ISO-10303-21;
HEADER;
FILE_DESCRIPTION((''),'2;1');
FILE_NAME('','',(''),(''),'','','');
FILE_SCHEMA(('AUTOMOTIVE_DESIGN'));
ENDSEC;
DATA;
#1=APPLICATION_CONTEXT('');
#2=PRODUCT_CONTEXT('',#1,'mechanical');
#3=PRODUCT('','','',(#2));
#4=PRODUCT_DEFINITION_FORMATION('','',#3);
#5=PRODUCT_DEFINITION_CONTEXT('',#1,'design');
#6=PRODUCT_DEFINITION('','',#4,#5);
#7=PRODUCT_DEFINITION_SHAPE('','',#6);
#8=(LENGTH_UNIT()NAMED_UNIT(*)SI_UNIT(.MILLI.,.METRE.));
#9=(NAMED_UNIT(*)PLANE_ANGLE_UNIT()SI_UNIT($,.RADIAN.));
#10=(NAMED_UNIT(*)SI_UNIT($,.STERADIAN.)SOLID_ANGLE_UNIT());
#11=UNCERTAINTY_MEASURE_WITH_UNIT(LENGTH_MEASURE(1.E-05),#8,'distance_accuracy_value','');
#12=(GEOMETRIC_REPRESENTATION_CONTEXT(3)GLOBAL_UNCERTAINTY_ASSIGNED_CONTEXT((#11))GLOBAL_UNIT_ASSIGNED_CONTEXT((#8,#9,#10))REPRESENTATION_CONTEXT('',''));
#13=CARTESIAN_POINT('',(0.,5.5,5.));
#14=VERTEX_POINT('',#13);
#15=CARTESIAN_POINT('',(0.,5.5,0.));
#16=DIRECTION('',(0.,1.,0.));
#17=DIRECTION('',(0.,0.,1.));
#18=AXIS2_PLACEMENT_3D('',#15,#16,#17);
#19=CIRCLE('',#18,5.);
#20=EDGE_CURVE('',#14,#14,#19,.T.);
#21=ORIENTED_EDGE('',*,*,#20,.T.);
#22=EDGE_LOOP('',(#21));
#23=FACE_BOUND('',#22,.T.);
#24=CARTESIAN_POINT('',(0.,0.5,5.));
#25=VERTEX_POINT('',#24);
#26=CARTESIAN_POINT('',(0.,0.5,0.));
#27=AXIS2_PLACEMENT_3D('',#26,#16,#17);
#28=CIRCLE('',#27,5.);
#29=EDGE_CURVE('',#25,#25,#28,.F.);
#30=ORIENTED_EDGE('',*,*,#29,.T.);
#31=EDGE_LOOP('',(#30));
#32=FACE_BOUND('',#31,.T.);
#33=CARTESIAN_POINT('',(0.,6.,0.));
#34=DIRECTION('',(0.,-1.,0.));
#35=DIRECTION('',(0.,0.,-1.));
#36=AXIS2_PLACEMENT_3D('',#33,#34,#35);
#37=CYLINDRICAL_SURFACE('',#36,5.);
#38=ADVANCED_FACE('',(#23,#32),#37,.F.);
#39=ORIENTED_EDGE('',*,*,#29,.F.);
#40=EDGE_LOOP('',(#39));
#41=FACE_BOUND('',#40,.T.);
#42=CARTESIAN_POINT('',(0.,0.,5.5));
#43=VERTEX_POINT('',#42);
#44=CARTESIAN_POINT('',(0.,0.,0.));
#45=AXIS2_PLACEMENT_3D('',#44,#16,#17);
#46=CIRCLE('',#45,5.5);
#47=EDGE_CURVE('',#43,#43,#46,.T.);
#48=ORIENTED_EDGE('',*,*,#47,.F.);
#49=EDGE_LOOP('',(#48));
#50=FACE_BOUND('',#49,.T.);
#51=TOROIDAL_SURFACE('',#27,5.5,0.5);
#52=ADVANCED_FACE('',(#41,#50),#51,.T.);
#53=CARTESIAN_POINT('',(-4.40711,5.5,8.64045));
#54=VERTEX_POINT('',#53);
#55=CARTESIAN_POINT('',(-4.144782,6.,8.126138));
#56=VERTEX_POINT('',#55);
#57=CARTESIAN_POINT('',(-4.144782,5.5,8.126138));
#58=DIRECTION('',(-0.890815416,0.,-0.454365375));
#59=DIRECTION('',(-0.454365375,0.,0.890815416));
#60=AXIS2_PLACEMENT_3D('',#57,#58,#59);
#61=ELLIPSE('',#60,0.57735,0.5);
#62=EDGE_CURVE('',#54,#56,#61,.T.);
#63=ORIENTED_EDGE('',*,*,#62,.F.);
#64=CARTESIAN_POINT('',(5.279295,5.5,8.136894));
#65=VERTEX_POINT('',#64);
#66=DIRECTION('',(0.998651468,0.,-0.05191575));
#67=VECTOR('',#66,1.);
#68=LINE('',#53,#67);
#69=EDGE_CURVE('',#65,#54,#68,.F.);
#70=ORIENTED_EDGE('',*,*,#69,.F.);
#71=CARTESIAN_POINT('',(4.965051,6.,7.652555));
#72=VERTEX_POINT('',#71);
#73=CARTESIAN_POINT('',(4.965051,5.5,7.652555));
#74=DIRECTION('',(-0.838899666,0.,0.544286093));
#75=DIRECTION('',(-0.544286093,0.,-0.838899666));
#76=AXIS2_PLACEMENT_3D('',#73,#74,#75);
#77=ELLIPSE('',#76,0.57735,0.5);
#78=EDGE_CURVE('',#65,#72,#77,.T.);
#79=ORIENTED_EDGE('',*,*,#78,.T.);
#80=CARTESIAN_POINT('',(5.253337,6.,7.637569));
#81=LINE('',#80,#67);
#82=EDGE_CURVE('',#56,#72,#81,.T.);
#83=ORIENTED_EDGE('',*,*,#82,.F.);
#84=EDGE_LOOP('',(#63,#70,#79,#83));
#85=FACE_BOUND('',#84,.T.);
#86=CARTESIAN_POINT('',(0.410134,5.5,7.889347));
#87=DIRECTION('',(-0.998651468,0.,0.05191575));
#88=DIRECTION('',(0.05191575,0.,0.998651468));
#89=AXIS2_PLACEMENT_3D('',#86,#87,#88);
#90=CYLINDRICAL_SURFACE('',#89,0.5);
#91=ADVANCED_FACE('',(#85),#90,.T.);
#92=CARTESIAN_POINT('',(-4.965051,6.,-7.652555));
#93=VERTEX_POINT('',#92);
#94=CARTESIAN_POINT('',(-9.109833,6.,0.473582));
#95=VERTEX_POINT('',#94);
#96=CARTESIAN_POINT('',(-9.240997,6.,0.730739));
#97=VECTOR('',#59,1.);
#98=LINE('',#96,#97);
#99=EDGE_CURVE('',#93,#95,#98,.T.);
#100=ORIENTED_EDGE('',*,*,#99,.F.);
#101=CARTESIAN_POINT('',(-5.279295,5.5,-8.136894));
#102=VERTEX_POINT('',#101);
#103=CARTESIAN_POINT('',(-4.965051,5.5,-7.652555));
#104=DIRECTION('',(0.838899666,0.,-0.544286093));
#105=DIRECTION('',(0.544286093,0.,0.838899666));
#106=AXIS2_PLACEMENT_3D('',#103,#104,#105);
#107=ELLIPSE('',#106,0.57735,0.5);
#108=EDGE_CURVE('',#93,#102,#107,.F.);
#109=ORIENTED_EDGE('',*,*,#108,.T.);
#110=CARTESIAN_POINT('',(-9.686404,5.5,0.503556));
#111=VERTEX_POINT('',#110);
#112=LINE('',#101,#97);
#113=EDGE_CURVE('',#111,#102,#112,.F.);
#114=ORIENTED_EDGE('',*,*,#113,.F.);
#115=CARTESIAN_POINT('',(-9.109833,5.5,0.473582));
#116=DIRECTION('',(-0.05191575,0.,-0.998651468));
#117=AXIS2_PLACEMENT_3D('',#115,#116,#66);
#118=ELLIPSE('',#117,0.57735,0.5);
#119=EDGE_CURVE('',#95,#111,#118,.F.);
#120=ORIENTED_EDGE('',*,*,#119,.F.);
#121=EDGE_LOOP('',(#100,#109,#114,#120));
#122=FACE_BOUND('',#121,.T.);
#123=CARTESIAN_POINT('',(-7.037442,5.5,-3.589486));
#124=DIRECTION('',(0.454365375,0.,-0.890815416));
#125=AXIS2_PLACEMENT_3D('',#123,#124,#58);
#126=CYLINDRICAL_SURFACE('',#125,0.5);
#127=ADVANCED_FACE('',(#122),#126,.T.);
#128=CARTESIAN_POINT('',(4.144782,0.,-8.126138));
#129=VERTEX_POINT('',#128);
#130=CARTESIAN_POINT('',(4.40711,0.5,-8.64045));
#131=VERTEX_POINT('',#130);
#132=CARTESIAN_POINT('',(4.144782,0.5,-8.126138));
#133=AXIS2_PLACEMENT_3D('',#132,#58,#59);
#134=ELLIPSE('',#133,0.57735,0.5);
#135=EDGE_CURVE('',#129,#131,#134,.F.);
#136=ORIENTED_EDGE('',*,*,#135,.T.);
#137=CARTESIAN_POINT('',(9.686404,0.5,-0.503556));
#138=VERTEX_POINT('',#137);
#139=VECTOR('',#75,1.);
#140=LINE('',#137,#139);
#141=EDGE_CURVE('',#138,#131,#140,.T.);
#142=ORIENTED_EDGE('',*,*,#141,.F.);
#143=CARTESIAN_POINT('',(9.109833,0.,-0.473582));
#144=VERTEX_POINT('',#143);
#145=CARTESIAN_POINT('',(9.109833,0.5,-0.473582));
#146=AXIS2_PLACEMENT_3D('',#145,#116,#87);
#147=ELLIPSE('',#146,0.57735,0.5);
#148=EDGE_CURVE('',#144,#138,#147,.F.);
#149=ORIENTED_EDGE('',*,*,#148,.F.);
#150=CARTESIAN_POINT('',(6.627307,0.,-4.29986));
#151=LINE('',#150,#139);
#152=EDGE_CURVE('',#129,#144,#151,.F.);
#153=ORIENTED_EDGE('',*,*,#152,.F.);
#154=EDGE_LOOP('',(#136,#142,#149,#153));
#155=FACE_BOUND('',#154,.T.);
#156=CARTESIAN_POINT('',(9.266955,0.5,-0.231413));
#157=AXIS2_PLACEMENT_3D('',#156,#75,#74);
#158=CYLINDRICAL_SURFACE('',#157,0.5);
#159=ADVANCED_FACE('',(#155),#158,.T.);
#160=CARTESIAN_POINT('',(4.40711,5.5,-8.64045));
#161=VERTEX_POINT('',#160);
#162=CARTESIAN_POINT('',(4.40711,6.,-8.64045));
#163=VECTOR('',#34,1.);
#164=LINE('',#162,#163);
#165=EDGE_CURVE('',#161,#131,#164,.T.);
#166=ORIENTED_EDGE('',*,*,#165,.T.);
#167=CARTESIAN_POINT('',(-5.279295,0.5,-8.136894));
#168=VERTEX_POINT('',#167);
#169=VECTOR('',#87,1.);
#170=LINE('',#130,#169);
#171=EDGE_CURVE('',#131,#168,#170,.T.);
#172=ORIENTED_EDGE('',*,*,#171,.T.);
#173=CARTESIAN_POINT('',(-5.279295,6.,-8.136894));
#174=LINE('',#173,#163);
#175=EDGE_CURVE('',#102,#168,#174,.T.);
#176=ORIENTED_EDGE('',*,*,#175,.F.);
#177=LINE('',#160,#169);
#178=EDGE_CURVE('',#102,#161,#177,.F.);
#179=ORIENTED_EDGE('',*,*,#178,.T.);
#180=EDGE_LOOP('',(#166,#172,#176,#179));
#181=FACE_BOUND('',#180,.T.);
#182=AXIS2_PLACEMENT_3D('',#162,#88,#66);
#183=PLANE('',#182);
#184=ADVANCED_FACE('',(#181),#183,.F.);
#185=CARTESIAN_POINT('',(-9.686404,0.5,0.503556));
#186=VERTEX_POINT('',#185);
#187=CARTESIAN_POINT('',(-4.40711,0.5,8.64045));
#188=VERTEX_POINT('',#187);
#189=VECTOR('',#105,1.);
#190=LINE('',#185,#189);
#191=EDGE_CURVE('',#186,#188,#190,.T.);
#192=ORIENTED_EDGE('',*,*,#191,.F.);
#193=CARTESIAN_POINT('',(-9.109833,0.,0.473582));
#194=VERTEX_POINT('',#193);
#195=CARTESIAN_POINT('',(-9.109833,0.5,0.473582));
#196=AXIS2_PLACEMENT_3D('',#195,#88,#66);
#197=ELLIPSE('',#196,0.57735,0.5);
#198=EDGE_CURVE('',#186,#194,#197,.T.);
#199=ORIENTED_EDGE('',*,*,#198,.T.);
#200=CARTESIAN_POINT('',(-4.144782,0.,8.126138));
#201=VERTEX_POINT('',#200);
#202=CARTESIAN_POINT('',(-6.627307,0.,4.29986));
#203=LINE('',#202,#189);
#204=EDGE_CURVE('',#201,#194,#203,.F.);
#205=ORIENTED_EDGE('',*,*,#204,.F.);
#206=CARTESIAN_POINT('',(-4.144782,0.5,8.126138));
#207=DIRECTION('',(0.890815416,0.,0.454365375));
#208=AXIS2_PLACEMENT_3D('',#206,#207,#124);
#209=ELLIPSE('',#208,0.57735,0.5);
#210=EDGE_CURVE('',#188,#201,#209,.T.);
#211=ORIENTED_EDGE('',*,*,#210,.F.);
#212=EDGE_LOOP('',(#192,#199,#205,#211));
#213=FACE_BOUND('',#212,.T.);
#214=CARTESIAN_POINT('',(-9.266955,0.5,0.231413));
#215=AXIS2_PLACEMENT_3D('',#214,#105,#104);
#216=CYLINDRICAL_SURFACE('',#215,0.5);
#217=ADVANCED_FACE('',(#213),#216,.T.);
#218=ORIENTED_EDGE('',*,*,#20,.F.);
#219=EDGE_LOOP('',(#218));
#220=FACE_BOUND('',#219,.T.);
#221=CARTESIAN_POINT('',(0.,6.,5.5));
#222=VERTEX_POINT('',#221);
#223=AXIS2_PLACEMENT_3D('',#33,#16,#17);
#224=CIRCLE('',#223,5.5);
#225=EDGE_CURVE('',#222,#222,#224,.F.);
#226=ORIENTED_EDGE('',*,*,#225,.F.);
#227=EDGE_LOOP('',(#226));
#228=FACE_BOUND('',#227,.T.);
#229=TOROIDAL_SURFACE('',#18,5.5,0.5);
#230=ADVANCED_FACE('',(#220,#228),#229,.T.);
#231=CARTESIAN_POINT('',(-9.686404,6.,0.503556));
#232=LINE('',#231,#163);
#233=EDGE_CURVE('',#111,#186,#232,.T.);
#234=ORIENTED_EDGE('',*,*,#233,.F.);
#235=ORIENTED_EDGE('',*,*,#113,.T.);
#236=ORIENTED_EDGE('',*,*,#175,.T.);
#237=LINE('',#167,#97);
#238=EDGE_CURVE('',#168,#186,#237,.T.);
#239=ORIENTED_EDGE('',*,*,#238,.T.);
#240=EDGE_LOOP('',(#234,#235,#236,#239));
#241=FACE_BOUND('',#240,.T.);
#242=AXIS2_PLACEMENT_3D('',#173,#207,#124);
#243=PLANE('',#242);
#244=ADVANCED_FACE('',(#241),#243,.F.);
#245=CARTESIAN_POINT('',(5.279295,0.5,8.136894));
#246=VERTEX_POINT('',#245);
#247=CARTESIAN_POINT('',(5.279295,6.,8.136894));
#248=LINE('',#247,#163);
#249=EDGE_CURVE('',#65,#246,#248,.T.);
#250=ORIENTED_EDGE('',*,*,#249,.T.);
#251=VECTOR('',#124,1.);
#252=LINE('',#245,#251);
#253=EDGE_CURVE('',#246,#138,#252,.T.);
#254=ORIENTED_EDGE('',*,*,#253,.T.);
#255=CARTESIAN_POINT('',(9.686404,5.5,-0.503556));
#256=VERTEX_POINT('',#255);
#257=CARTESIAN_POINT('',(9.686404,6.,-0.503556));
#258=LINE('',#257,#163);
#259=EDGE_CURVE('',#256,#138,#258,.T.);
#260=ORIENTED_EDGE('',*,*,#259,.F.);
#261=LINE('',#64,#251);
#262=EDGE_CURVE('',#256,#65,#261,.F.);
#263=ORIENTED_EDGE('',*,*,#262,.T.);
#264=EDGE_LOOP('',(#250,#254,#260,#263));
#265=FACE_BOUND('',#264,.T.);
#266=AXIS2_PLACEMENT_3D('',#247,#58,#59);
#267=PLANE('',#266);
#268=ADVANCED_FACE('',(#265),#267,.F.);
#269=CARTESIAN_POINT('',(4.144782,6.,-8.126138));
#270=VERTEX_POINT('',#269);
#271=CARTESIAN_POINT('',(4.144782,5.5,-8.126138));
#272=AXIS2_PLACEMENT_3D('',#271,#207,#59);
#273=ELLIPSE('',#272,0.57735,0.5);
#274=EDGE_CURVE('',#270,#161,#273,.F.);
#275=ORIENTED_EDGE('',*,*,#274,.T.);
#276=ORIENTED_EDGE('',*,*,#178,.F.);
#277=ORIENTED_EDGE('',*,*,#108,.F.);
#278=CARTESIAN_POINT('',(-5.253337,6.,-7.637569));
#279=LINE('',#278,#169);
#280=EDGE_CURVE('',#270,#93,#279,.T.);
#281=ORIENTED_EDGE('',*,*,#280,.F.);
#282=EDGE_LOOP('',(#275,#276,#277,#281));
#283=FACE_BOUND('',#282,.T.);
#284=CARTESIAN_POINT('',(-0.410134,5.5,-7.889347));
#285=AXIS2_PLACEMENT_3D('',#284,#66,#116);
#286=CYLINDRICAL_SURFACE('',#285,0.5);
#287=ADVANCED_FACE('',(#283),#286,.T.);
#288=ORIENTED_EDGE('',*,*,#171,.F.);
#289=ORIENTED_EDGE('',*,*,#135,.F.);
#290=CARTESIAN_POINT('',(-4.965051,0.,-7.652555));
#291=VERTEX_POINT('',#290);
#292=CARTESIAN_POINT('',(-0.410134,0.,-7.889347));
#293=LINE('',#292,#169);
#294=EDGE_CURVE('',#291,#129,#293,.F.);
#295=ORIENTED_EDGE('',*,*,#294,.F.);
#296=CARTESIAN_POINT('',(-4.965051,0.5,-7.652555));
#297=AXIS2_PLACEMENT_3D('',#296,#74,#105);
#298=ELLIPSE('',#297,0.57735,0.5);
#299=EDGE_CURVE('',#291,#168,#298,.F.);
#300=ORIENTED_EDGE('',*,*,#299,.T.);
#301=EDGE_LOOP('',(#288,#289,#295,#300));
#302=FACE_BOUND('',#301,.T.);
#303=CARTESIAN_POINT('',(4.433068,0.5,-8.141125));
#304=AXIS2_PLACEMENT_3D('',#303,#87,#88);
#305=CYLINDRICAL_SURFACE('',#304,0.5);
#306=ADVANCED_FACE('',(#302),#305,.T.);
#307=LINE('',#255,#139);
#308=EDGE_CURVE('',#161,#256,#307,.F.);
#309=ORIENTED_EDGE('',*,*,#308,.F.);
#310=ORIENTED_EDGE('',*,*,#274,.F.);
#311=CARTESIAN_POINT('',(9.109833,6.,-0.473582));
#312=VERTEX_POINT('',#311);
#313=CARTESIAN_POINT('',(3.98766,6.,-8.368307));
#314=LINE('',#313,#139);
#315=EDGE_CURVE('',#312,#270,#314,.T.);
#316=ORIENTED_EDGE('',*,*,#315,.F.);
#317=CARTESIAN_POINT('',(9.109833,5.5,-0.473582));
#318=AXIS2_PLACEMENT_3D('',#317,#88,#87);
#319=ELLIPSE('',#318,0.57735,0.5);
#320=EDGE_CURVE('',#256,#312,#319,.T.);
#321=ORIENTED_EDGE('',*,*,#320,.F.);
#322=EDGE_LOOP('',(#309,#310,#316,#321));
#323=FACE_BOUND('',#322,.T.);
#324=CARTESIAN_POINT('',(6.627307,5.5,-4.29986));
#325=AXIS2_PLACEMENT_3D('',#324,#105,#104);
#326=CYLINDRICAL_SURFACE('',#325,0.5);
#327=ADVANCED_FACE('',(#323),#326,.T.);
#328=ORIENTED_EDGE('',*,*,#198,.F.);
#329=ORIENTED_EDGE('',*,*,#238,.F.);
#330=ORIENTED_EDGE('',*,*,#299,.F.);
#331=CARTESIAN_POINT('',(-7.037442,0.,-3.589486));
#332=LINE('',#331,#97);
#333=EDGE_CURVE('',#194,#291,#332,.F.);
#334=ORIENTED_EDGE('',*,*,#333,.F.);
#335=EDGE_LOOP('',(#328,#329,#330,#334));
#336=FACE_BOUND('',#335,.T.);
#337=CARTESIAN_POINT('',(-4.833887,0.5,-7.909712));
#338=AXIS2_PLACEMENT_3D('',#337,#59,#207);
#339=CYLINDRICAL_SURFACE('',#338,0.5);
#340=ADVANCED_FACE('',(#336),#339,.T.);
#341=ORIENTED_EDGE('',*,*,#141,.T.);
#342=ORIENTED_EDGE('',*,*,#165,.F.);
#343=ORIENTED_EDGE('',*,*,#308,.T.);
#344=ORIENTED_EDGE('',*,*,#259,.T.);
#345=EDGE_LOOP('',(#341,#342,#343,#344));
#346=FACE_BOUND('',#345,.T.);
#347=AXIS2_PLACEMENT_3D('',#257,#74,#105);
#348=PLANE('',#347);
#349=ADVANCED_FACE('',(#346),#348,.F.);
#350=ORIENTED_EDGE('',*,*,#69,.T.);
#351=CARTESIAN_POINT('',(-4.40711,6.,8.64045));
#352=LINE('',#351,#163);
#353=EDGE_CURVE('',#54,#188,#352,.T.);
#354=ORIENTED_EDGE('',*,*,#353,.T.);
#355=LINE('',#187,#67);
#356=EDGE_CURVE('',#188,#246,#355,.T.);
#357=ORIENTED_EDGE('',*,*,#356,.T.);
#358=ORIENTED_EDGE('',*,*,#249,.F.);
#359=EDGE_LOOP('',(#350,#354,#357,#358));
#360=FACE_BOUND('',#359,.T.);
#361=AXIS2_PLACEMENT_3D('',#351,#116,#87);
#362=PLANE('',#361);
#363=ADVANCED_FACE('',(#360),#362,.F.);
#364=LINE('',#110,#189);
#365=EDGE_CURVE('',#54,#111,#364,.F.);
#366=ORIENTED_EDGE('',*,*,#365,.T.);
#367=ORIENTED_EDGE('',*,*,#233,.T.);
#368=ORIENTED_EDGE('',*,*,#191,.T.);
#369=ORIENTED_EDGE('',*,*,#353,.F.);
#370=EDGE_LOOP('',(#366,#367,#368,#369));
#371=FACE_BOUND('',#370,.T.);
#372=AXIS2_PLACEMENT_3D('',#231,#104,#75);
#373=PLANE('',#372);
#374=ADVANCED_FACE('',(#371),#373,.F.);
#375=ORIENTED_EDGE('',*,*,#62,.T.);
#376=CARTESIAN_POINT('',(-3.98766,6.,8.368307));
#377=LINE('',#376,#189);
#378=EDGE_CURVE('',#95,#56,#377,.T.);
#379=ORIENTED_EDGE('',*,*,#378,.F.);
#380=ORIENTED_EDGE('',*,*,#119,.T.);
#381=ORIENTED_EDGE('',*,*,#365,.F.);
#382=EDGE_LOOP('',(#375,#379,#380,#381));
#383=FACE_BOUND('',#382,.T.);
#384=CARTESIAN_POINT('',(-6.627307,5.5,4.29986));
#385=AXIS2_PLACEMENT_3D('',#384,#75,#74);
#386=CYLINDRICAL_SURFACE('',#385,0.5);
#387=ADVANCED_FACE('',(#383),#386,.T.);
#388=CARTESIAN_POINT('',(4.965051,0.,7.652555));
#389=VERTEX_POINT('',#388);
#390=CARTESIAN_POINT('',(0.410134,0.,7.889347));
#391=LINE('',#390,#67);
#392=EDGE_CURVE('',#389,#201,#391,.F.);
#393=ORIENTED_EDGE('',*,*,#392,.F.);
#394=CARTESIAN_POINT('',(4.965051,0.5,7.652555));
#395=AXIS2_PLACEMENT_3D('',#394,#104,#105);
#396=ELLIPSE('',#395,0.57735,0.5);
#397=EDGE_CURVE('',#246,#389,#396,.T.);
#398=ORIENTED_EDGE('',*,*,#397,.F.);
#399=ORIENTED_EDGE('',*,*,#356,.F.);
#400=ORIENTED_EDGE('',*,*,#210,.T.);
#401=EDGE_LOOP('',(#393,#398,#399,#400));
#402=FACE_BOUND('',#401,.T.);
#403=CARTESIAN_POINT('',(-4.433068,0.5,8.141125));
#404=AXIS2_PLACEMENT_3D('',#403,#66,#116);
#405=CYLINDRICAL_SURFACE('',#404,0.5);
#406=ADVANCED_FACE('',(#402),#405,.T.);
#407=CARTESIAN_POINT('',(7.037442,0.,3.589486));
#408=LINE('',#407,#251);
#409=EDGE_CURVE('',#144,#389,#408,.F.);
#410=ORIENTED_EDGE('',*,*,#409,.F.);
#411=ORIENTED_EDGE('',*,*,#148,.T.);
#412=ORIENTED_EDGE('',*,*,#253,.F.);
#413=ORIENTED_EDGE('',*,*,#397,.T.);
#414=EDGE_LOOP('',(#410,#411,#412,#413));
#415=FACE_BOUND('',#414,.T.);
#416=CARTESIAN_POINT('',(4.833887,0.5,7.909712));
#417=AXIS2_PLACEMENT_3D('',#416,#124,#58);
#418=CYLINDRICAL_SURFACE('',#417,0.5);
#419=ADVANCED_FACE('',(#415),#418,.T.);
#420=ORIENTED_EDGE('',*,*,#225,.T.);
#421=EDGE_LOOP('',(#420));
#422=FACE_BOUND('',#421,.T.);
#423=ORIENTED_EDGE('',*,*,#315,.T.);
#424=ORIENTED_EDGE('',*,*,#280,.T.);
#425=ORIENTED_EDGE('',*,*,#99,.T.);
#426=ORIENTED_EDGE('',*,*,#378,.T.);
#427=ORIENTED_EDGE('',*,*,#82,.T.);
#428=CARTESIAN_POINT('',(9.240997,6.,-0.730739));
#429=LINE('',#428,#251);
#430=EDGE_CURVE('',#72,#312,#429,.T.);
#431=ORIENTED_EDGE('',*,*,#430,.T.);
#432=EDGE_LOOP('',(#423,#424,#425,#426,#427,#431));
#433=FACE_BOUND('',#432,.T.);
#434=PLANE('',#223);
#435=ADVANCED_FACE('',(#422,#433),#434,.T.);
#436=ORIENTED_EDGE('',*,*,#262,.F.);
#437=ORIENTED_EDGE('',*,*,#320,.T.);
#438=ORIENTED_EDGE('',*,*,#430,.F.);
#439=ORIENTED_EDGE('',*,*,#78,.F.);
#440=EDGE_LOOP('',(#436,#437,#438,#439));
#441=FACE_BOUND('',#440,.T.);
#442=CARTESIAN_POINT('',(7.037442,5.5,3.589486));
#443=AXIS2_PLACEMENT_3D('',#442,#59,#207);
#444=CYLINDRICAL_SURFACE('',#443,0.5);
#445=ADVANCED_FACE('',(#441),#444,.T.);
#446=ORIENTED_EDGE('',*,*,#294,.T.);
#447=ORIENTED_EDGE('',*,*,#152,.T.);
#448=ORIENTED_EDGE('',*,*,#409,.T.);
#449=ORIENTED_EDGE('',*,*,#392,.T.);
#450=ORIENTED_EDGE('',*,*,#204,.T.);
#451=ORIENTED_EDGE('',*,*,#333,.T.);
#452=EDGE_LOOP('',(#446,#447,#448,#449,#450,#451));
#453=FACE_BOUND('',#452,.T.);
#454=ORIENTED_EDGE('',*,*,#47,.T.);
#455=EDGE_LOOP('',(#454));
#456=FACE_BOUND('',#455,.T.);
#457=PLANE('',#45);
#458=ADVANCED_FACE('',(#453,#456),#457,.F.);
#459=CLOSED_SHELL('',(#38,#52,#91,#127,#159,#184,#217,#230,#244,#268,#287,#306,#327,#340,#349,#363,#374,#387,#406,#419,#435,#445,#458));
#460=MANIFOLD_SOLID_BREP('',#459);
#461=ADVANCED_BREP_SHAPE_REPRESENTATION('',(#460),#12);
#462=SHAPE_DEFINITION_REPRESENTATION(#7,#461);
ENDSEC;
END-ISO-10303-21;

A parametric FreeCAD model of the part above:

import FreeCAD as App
import Part
import Sketcher
Q = App.Units.Quantity


def edges_at(feature, points):
    """Names of the edges that pass closest to the given points."""
    edges = feature.Shape.Edges
    near = lambda p: min(range(len(edges)), key=lambda i: edges[i].distToShape(Part.Vertex(*p))[0])
    return sorted({f"Edge{near(p) + 1}" for p in points})


def add_polygon(sketch, points):
    """Adds a closed chain of lines whose ends are joined by coincident constraints."""
    first, n = sketch.GeometryCount, len(points)
    for a, b in zip(points, points[1:] + points[:1]):
        sketch.addGeometry(Part.LineSegment(App.Vector(*a, 0), App.Vector(*b, 0)), False)
    for i in range(n):
        sketch.addConstraint(Sketcher.Constraint("Coincident", first + i, 2, first + (i + 1) % n, 1))

doc = App.newDocument("Part")
body = doc.addObject("PartDesign::Body", "Body")

sketch1 = doc.addObject("Sketcher::SketchObject", "Sketch")
body.addObject(sketch1)
sketch1.AttachmentSupport = (doc.XZ_Plane, [""])
sketch1.MapMode = "FlatFace"
add_polygon(sketch1, [(5, 8), (10, -1), (4, -9), (-5, -8), (-10, 1), (-4, 9)])
sketch1.addGeometry(Part.Circle(App.Vector(0, 0, 0), App.Vector(0, 0, 1), 5), False)
sketch1.addConstraint(Sketcher.Constraint("Coincident", 6, 3, -1, 1))
sketch1.addConstraint(Sketcher.Constraint("Symmetric", 0, 2, 3, 2, -1, 1))
sketch1.addConstraint(Sketcher.Constraint("Symmetric", 1, 2, 4, 2, -1, 1))
sketch1.addConstraint(Sketcher.Constraint("Symmetric", 2, 2, 5, 2, -1, 1))
sketch1.addConstraint(Sketcher.Constraint("Equal", 0, 1))
sketch1.addConstraint(Sketcher.Constraint("Equal", 1, 2))
sketch1.addConstraint(Sketcher.Constraint("Diameter", 6, Q("10 mm")))
sketch1.addConstraint(Sketcher.Constraint("DistanceX", 2, 2, 0, 2, Q("14.965699 mm")))
sketch1.addConstraint(Sketcher.Constraint("DistanceY", 1, 2, 4, 2, Q("17.280901 mm")))
sketch1.addConstraint(Sketcher.Constraint("DistanceX", -1, 1, 1, 2, Q("4.40711 mm")))
sketch1.addConstraint(Sketcher.Constraint("DistanceY", 2, 2, 0, 2, Q("7.633338 mm")))
pad1 = doc.addObject("PartDesign::Pad", "Pad")
body.addObject(pad1)
pad1.Profile = sketch1
pad1.Length = 6
pad1.Reversed = True
doc.recompute()

fillet = doc.addObject("PartDesign::Fillet", "Fillet")
body.addObject(fillet)
fillet.Base = (pad1, edges_at(pad1, [
    (7.047, 6, -4.572),
    (-0.436, 6, -8.389),
    (-7.483, 6, -3.817),
    (0, 0, -5),
    (0, 6, -5),
    (-7.047, 6, 4.572),
    (0.436, 6, 8.389),
    (-7.047, 0, 4.572),
    (-7.483, 0, -3.817),
    (-0.436, 0, -8.389),
    (7.483, 6, 3.817),
    (7.047, 0, -4.572),
    (7.483, 0, 3.817),
    (0.436, 0, 8.389),
]))
fillet.Radius = 0.5

doc.recompute()
